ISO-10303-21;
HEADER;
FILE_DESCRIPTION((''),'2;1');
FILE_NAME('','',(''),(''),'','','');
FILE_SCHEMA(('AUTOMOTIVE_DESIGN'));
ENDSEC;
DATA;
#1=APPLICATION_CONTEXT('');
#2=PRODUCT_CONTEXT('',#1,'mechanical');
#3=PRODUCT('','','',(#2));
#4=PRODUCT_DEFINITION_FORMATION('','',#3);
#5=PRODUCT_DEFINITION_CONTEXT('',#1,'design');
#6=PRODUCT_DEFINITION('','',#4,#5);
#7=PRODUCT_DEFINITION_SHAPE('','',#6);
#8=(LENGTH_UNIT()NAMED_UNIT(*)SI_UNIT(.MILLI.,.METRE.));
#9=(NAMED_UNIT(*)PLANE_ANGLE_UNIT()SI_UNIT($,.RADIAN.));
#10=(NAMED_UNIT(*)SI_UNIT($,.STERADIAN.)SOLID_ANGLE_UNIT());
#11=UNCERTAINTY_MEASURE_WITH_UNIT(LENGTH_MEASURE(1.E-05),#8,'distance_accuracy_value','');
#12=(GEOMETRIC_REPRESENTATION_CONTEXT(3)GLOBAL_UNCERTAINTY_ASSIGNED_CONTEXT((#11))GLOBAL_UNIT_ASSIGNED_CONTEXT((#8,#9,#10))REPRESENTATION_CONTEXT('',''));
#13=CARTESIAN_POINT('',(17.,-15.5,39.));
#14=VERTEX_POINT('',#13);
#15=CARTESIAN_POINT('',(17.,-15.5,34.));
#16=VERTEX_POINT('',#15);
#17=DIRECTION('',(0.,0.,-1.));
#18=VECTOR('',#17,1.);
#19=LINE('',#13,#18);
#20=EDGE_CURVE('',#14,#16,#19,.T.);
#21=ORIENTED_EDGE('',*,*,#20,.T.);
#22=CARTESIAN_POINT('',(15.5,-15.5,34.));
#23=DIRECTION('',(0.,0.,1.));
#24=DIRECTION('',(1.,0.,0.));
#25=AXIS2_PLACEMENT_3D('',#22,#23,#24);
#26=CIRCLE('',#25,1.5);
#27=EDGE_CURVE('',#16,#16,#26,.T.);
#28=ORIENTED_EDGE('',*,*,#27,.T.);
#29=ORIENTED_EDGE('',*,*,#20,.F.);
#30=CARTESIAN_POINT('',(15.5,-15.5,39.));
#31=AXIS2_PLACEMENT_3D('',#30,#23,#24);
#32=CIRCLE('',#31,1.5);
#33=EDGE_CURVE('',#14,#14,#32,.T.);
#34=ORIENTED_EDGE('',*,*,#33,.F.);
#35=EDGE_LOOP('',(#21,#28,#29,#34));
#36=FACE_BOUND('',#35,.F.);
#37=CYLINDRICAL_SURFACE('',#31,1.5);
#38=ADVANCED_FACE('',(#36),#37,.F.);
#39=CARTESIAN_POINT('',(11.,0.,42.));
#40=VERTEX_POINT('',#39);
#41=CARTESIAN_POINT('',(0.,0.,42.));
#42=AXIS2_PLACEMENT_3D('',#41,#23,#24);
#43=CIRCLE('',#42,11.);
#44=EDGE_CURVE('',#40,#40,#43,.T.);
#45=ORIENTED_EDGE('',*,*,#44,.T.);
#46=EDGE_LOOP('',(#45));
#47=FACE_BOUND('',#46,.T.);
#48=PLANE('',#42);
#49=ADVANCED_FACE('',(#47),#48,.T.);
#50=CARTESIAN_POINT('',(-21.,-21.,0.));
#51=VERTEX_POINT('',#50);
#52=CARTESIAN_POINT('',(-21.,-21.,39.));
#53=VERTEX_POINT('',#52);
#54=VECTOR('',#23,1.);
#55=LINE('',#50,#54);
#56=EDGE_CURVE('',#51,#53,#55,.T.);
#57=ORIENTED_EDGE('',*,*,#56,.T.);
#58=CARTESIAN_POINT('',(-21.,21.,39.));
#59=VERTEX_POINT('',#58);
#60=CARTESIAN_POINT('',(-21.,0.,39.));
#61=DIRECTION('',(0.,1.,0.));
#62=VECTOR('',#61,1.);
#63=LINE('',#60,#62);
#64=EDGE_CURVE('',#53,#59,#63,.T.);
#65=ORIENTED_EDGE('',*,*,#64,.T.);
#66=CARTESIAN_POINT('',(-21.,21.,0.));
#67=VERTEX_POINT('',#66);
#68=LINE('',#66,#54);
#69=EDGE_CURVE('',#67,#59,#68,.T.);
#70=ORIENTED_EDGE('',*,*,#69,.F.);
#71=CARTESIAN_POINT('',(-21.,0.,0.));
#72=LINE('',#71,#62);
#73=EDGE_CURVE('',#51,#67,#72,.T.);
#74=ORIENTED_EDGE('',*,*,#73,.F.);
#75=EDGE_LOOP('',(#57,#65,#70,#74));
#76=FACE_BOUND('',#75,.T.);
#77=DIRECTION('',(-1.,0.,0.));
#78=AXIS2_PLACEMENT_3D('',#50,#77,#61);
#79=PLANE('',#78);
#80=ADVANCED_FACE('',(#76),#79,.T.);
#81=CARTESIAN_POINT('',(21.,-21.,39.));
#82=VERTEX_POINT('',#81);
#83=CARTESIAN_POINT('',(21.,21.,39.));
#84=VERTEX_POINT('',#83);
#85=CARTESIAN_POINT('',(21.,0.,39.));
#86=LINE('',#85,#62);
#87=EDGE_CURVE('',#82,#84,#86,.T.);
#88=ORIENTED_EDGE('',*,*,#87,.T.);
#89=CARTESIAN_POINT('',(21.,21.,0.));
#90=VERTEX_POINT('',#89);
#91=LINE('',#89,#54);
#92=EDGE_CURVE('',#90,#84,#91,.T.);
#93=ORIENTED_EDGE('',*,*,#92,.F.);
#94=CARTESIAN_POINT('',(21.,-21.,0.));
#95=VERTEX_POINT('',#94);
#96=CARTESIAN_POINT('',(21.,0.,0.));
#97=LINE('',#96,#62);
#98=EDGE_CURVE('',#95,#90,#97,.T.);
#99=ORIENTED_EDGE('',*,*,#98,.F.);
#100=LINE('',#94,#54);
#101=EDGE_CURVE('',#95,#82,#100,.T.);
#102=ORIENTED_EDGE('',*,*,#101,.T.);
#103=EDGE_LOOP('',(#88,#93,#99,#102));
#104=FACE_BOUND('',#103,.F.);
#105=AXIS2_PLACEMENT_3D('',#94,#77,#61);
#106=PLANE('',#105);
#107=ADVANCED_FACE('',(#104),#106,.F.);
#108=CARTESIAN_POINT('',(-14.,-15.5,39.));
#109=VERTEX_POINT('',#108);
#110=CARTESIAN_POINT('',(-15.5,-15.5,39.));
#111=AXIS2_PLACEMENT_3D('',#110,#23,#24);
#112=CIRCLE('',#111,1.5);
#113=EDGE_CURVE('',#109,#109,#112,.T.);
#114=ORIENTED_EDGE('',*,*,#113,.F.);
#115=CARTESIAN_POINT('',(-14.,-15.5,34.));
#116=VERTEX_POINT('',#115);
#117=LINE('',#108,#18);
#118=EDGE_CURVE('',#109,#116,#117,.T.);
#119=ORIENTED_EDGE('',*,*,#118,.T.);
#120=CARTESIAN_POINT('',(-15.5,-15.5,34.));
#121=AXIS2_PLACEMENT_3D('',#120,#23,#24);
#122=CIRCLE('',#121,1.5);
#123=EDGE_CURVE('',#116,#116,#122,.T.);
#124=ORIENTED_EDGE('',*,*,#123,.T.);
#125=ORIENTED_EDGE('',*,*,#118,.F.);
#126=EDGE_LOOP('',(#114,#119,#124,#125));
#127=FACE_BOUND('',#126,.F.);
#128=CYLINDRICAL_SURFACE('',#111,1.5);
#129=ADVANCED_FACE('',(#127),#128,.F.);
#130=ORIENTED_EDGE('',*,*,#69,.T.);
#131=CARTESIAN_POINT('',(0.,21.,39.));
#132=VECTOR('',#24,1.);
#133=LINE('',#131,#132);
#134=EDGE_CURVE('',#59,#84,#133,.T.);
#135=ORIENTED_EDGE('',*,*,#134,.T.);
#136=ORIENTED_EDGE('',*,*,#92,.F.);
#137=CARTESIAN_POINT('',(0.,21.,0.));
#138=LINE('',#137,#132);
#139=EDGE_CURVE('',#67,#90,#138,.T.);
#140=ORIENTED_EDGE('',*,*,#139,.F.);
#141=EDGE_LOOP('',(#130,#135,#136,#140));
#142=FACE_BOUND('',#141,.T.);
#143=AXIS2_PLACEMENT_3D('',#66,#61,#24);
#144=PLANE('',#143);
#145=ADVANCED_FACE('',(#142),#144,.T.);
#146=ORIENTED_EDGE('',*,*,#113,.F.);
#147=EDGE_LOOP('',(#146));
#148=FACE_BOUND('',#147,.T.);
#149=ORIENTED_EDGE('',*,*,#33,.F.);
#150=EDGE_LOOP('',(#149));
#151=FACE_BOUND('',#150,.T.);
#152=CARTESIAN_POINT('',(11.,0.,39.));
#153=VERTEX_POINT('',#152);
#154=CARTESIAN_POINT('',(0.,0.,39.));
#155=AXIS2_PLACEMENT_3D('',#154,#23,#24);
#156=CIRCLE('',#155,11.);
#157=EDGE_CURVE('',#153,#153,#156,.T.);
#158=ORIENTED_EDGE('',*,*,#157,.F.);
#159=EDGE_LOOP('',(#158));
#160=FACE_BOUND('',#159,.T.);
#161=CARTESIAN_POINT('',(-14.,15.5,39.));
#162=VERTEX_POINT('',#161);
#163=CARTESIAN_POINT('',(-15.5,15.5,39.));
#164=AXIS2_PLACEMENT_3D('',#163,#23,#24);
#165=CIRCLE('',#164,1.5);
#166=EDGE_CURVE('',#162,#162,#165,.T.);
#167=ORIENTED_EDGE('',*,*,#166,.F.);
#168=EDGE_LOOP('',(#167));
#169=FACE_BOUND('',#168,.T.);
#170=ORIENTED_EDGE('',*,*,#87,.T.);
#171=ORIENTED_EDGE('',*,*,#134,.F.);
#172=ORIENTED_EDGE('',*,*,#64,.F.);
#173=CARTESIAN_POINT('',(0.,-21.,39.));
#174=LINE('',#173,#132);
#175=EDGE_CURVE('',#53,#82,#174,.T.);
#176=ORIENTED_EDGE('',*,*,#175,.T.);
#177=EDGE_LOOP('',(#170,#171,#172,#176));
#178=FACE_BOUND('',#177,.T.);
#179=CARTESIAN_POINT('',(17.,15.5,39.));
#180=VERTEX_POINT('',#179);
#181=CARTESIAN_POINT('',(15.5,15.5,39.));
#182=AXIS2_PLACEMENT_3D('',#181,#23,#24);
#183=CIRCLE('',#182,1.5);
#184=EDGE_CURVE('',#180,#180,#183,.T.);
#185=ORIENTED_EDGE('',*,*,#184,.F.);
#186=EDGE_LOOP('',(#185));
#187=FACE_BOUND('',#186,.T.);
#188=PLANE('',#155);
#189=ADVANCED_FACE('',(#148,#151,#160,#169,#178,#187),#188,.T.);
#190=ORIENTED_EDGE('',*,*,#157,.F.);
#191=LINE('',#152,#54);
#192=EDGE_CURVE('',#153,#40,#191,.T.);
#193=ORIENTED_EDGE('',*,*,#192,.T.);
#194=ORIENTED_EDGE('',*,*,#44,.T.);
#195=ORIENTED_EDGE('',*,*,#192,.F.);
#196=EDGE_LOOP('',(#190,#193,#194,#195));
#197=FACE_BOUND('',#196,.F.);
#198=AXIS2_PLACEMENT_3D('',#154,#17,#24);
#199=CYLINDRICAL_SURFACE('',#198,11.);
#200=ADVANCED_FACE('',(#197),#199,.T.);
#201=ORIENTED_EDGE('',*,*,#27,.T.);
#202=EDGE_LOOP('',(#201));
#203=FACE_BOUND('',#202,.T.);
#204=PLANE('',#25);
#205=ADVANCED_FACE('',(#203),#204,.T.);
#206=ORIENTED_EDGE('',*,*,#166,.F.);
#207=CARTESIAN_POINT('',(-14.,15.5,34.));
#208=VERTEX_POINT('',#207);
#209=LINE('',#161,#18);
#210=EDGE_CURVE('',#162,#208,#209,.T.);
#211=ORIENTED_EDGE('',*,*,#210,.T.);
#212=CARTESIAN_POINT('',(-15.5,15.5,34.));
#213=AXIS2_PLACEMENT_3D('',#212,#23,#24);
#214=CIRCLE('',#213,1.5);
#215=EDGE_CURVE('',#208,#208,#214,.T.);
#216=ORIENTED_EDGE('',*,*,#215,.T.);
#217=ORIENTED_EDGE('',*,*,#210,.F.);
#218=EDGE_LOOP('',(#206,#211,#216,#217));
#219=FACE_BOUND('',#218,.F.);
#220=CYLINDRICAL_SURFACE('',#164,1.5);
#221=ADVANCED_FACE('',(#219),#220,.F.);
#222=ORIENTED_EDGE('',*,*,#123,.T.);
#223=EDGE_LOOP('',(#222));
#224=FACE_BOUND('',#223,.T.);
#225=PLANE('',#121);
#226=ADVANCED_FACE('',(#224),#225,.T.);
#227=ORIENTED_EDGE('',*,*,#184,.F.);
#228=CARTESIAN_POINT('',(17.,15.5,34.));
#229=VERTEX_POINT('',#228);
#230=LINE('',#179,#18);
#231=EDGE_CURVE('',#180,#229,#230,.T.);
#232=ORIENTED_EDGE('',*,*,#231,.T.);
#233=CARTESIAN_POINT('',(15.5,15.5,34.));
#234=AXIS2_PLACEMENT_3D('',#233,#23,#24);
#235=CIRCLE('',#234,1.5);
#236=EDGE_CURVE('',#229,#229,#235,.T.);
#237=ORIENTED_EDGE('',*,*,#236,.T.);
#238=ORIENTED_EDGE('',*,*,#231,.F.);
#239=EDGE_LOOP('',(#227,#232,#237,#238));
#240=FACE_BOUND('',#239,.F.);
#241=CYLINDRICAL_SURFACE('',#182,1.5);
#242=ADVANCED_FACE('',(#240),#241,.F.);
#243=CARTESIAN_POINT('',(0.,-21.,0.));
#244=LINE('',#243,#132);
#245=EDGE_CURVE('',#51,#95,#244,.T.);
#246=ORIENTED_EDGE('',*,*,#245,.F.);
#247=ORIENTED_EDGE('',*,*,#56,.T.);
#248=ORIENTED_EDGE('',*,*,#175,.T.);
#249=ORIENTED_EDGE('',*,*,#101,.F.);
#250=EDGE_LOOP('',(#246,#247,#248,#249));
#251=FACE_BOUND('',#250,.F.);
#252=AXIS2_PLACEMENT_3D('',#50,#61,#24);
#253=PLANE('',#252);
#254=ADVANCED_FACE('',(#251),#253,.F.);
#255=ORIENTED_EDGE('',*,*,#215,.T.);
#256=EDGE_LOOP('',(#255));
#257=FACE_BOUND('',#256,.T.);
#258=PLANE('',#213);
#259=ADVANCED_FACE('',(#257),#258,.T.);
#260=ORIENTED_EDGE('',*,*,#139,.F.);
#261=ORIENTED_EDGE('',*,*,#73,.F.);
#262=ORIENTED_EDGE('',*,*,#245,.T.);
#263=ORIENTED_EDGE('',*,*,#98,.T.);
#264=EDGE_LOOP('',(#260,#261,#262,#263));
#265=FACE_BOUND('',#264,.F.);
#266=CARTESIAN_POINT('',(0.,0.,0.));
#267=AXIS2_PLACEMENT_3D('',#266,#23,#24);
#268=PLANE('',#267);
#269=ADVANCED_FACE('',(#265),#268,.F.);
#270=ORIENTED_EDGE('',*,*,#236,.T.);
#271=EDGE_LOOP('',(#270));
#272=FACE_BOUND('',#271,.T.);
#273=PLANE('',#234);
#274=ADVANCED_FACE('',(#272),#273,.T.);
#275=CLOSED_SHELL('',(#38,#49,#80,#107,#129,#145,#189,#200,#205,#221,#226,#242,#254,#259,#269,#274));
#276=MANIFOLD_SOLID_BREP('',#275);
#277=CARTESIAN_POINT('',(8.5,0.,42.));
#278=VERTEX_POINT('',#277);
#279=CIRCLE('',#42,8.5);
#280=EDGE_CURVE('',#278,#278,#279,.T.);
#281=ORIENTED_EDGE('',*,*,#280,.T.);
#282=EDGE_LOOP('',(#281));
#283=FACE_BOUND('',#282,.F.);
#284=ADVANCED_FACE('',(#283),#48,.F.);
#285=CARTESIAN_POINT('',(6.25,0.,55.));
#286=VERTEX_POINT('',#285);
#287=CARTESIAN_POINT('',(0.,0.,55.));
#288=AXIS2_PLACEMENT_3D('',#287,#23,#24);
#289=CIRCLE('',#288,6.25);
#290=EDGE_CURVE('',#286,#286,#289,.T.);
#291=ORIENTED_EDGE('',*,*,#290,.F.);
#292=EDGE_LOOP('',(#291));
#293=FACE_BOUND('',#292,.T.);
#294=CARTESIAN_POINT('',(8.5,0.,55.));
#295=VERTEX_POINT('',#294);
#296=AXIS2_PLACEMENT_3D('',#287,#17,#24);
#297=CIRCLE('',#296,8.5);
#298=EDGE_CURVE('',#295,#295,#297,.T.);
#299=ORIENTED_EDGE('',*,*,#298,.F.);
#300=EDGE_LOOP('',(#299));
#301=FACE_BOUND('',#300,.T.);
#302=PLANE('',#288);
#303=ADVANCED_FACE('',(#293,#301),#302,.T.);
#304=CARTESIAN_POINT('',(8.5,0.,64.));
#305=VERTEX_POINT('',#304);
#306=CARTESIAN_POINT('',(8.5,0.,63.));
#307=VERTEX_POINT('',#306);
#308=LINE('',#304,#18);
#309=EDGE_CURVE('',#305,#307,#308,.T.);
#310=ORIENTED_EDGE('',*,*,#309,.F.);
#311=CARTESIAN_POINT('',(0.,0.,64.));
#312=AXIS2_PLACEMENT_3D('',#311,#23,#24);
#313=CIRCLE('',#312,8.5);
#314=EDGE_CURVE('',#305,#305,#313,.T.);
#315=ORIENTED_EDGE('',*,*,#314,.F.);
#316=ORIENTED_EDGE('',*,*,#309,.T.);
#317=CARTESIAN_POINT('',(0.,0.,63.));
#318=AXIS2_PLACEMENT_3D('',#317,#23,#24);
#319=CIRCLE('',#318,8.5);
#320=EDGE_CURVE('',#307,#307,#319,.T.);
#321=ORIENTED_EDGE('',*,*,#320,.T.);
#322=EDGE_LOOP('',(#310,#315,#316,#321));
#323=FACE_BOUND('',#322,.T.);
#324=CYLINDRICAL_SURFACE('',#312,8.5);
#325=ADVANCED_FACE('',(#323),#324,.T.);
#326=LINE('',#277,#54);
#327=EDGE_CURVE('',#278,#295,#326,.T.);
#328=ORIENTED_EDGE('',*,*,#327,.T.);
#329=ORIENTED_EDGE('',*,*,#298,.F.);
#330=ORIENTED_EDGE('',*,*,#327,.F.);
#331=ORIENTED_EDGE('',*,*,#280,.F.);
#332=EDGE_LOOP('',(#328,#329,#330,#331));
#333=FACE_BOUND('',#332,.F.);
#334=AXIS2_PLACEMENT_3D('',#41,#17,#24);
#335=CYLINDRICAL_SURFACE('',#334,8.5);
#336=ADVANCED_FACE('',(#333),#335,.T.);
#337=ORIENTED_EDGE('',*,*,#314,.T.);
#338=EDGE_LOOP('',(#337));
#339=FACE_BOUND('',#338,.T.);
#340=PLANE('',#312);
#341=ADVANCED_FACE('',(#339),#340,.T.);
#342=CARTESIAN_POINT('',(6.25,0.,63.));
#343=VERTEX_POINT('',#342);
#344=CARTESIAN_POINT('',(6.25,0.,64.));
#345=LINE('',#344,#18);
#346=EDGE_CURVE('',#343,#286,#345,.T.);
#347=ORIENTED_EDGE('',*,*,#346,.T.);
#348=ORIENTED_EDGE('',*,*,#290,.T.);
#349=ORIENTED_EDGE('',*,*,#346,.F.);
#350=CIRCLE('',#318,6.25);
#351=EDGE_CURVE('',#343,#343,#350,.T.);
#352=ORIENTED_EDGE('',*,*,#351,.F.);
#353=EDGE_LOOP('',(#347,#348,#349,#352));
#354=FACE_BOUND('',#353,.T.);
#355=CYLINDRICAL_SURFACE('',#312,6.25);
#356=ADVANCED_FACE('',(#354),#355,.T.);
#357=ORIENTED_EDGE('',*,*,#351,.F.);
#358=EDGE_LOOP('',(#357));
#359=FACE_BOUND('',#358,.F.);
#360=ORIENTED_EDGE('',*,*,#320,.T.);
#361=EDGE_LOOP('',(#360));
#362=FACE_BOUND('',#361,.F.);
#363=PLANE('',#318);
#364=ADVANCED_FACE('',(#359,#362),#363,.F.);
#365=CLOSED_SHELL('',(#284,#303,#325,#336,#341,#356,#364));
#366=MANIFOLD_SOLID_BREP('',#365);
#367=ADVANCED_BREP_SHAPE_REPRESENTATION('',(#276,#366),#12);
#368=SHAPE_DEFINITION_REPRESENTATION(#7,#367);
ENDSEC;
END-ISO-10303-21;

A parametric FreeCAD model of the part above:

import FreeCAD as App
import Part
import Sketcher

V = App.Vector

doc = App.newDocument("Part")
body = doc.addObject("PartDesign::Body", "Body")

sketch1 = doc.addObject("Sketcher::SketchObject", "Sketch")
body.addObject(sketch1)
sketch1.AttachmentSupport = (doc.XY_Plane, [""])
sketch1.MapMode = "FlatFace"
sketch1.addGeometry([
    Part.LineSegment(V(-21, 21, 0), V(-21, -21, 0)),
    Part.LineSegment(V(-21, -21, 0), V(21, -21, 0)),
    Part.LineSegment(V(21, -21, 0), V(21, 21, 0)),
    Part.LineSegment(V(21, 21, 0), V(-21, 21, 0)),
], False)
sketch1.addConstraint([
    Sketcher.Constraint("Coincident", 0, 2, 1, 1),
    Sketcher.Constraint("Coincident", 1, 2, 2, 1),
    Sketcher.Constraint("Coincident", 2, 2, 3, 1),
    Sketcher.Constraint("Coincident", 3, 2, 0, 1),
    Sketcher.Constraint("Vertical", 0),
    Sketcher.Constraint("Horizontal", 1),
    Sketcher.Constraint("Vertical", 2),
    Sketcher.Constraint("Horizontal", 3),
    Sketcher.Constraint("Symmetric", 0, 2, 2, 2, -1, 1),
    Sketcher.Constraint("Equal", 3, 0),
    Sketcher.Constraint("DistanceX", 1, 1, 1, 2, 42.0),
])
pad1 = doc.addObject("PartDesign::Pad", "Pad")
body.addObject(pad1)
pad1.Profile = sketch1
pad1.Length = 39

sketch2 = doc.addObject("Sketcher::SketchObject", "Sketch001")
body.addObject(sketch2)
sketch2.AttachmentSupport = (doc.XY_Plane, [""])
sketch2.MapMode = "FlatFace"
sketch2.AttachmentOffset = App.Placement(V(0, 0, 39), App.Rotation())
sketch2.addGeometry(Part.Circle(V(0, 0, 0), V(0, 0, 1), 11), False)
sketch2.addConstraint([
    Sketcher.Constraint("Coincident", 0, 3, -1, 1),
    Sketcher.Constraint("Diameter", 0, 22.0),
])
pad2 = doc.addObject("PartDesign::Pad", "Pad001")
body.addObject(pad2)
pad2.Profile = sketch2
pad2.Length = 3

sketch3 = doc.addObject("Sketcher::SketchObject", "Sketch002")
body.addObject(sketch3)
sketch3.AttachmentSupport = (doc.XY_Plane, [""])
sketch3.MapMode = "FlatFace"
sketch3.AttachmentOffset = App.Placement(V(0, 0, 39), App.Rotation())
sketch3.addGeometry([
    Part.Circle(V(-15.5, 15.5, 0), V(0, 0, 1), 1.5),
    Part.Circle(V(15.5, 15.5, 0), V(0, 0, 1), 1.5),
    Part.Circle(V(15.5, -15.5, 0), V(0, 0, 1), 1.5),
    Part.Circle(V(-15.5, -15.5, 0), V(0, 0, 1), 1.5),
], False)
sketch3.addConstraint([
    Sketcher.Constraint("Equal", 0, 1),
    Sketcher.Constraint("Equal", 1, 2),
    Sketcher.Constraint("Equal", 2, 3),
    Sketcher.Constraint("Symmetric", 0, 3, 2, 3, -1, 1),
    Sketcher.Constraint("Symmetric", 1, 3, 3, 3, -1, 1),
    Sketcher.Constraint("Symmetric", 0, 3, 1, 3, -2),
    Sketcher.Constraint("Diameter", 0, 3.0),
    Sketcher.Constraint("DistanceX", 0, 3, 1, 3, 31.0),
    Sketcher.Constraint("DistanceY", 2, 3, 1, 3, 31.0),
])
pocket1 = doc.addObject("PartDesign::Pocket", "Pocket")
body.addObject(pocket1)
pocket1.Profile = sketch3
pocket1.Length = 5
body2 = doc.addObject("PartDesign::Body", "Body001")

sketch4 = doc.addObject("Sketcher::SketchObject", "Sketch003")
body2.addObject(sketch4)
sketch4.AttachmentSupport = (doc.getObject("XY_Plane001"), [""])
sketch4.MapMode = "FlatFace"
sketch4.AttachmentOffset = App.Placement(V(0, 0, 42), App.Rotation())
sketch4.addGeometry(Part.Circle(V(0, 0, 0), V(0, 0, 1), 8), False)
sketch4.addConstraint([
    Sketcher.Constraint("Coincident", 0, 3, -1, 1),
    Sketcher.Constraint("Diameter", 0, 17.0),
])
pad3 = doc.addObject("PartDesign::Pad", "Pad002")
body2.addObject(pad3)
pad3.Profile = sketch4
pad3.Length = 22

sketch5 = doc.addObject("Sketcher::SketchObject", "Sketch004")
body2.addObject(sketch5)
sketch5.AttachmentSupport = (doc.getObject("XY_Plane001"), [""])
sketch5.MapMode = "FlatFace"
sketch5.AttachmentOffset = App.Placement(V(0, 0, 64), App.Rotation())
sketch5.addGeometry([
    Part.Circle(V(0, 0, 0), V(0, 0, 1), 31),
    Part.Circle(V(0, 0, 0), V(0, 0, 1), 6),
], False)
sketch5.addConstraint([
    Sketcher.Constraint("Coincident", 0, 3, -1, 1),
    Sketcher.Constraint("Coincident", 1, 3, -1, 1),
    Sketcher.Constraint("Diameter", 1, 12.5),
    Sketcher.Constraint("Diameter", 0, 62.351908),
])
pocket2 = doc.addObject("PartDesign::Pocket", "Pocket001")
body2.addObject(pocket2)
pocket2.Profile = sketch5
pocket2.Length = 9

sketch6 = doc.addObject("Sketcher::SketchObject", "Sketch005")
body2.addObject(sketch6)
sketch6.AttachmentSupport = (doc.getObject("XY_Plane001"), [""])
sketch6.MapMode = "FlatFace"
sketch6.AttachmentOffset = App.Placement(V(0, 0, 64), App.Rotation())
sketch6.addGeometry(Part.Circle(V(0, 0, 0), V(0, 0, 1), 8), False)
sketch6.addConstraint([
    Sketcher.Constraint("Coincident", 0, 3, -1, 1),
    Sketcher.Constraint("Diameter", 0, 17.0),
])
pad4 = doc.addObject("PartDesign::Pad", "Pad003")
body2.addObject(pad4)
pad4.Profile = sketch6
pad4.Length = 1
pad4.Reversed = True

doc.recompute()
